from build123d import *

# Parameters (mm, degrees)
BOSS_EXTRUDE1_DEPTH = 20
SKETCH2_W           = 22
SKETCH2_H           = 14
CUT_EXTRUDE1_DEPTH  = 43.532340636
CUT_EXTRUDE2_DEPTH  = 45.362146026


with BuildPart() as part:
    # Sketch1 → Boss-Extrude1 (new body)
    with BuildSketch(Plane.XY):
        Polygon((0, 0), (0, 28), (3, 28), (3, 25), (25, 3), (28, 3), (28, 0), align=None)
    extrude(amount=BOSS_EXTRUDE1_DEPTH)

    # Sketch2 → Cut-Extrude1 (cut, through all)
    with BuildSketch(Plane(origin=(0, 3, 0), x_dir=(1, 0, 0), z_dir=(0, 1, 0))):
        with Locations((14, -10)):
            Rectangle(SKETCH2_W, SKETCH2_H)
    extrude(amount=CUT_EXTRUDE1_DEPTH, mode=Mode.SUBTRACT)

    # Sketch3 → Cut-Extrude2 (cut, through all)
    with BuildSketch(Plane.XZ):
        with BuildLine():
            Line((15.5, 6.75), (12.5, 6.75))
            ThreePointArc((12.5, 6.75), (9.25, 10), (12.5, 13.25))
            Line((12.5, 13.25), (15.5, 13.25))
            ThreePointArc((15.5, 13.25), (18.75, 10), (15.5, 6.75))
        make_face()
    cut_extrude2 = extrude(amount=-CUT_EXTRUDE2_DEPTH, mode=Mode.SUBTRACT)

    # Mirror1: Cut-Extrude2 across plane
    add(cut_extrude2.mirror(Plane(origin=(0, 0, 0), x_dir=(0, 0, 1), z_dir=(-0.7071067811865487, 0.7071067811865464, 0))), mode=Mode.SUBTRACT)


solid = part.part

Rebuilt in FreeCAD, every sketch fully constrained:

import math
import FreeCAD as App
import Part
import Sketcher


def add_polygon(sketch, points):
    """Adds a closed chain of lines whose ends are joined by coincident constraints."""
    first, n = sketch.GeometryCount, len(points)
    for a, b in zip(points, points[1:] + points[:1]):
        sketch.addGeometry(Part.LineSegment(App.Vector(*a, 0), App.Vector(*b, 0)), False)
    for i in range(n):
        sketch.addConstraint(Sketcher.Constraint("Coincident", first + i, 2, first + (i + 1) % n, 1))

doc = App.newDocument("Part")
body = doc.addObject("PartDesign::Body", "Body")

sketch1 = doc.addObject("Sketcher::SketchObject", "Sketch")
body.addObject(sketch1)
sketch1.AttachmentSupport = (doc.XY_Plane, [""])
sketch1.MapMode = "FlatFace"
add_polygon(sketch1, [(0, 28), (0, 0), (28, 0), (28, 3), (25, 3), (3, 25), (3, 28)])
sketch1.addConstraint([
    Sketcher.Constraint("Vertical", 0),
    Sketcher.Constraint("Horizontal", 1),
    Sketcher.Constraint("Vertical", 2),
    Sketcher.Constraint("Horizontal", 3),
    Sketcher.Constraint("Vertical", 5),
    Sketcher.Constraint("Horizontal", 6),
    Sketcher.Constraint("Coincident", 0, 2, -1, 1),
    Sketcher.Constraint("Equal", 3, 6),
    Sketcher.Constraint("Equal", 1, 0),
    Sketcher.Constraint("Equal", 6, 2),
    Sketcher.Constraint("Equal", 2, 5),
    Sketcher.Constraint("DistanceX", 1, 1, 1, 2, 28.0),
    Sketcher.Constraint("DistanceX", 3, 2, 3, 1, 3.0),
])
pad1 = doc.addObject("PartDesign::Pad", "Pad")
body.addObject(pad1)
pad1.Profile = sketch1
pad1.Length = 20

sketch2 = doc.addObject("Sketcher::SketchObject", "Sketch001")
body.addObject(sketch2)
sketch2.AttachmentSupport = (doc.XZ_Plane, [""])
sketch2.MapMode = "FlatFace"
sketch2.AttachmentOffset = App.Placement(App.Vector(0, 0, -3), App.Rotation())
add_polygon(sketch2, [(3, 3), (3, 17), (25, 17), (25, 3)])
sketch2.addConstraint([
    Sketcher.Constraint("Vertical", 0),
    Sketcher.Constraint("Horizontal", 1),
    Sketcher.Constraint("Vertical", 2),
    Sketcher.Constraint("Horizontal", 3),
    Sketcher.Constraint("DistanceX", 1, 1, 1, 2, 22.0),
    Sketcher.Constraint("DistanceY", 0, 1, 0, 2, 14.0),
    Sketcher.Constraint("DistanceX", -1, 1, 0, 2, 3.0),
    Sketcher.Constraint("DistanceY", -1, 1, 0, 2, 17.0),
])
pocket1 = doc.addObject("PartDesign::Pocket", "Pocket")
body.addObject(pocket1)
pocket1.Profile = sketch2
pocket1.Type = "ThroughAll"

sketch3 = doc.addObject("Sketcher::SketchObject", "Sketch002")
body.addObject(sketch3)
sketch3.AttachmentSupport = (doc.XZ_Plane, [""])
sketch3.MapMode = "FlatFace"
sketch3.addGeometry([
    Part.LineSegment(App.Vector(12.5, 6.8, 0), App.Vector(15.5, 6.8, 0)),
    Part.ArcOfCircle(Part.Circle(App.Vector(15.5, 10, 0), App.Vector(0, 0, 1), 3.2), math.radians(-90), math.radians(90)),
    Part.LineSegment(App.Vector(15.5, 13.2, 0), App.Vector(12.5, 13.2, 0)),
    Part.ArcOfCircle(Part.Circle(App.Vector(12.5, 10, 0), App.Vector(0, 0, 1), 3.2), math.radians(90), math.radians(270)),
], False)
sketch3.addConstraint([
    Sketcher.Constraint("Tangent", 0, 2, 1, 1),
    Sketcher.Constraint("Tangent", 1, 2, 2, 1),
    Sketcher.Constraint("Tangent", 2, 2, 3, 1),
    Sketcher.Constraint("Tangent", 3, 2, 0, 1),
    Sketcher.Constraint("Horizontal", 0),
    Sketcher.Constraint("Horizontal", 2),
    Sketcher.Constraint("DistanceX", 0, 1, 0, 2, 3.0),
    Sketcher.Constraint("Radius", 1, 3.25),
    Sketcher.Constraint("DistanceY", -1, 1, 1, 3, 10.0),
    Sketcher.Constraint("DistanceX", -1, 1, 1, 3, 15.5),
])
pocket2 = doc.addObject("PartDesign::Pocket", "Pocket001")
body.addObject(pocket2)
pocket2.Profile = sketch3
pocket2.Type = "ThroughAll"
doc.recompute()

datumplane = doc.addObject("PartDesign::Plane", "DatumPlane")
body.addObject(datumplane)
datumplane.Placement = App.Placement(App.Vector(0, 0, 0), App.Rotation(App.Vector(0.707106781, 0.707106781, 0), App.Vector(0, 0, -1), App.Vector(-0.707106781, 0.707106781, 0), "ZXY"))
mirrored = doc.addObject("PartDesign::Mirrored", "Mirrored")
body.addObject(mirrored)
mirrored.Originals = [pocket2]
mirrored.MirrorPlane = (datumplane, [""])
body.Tip = mirrored

doc.recompute()
